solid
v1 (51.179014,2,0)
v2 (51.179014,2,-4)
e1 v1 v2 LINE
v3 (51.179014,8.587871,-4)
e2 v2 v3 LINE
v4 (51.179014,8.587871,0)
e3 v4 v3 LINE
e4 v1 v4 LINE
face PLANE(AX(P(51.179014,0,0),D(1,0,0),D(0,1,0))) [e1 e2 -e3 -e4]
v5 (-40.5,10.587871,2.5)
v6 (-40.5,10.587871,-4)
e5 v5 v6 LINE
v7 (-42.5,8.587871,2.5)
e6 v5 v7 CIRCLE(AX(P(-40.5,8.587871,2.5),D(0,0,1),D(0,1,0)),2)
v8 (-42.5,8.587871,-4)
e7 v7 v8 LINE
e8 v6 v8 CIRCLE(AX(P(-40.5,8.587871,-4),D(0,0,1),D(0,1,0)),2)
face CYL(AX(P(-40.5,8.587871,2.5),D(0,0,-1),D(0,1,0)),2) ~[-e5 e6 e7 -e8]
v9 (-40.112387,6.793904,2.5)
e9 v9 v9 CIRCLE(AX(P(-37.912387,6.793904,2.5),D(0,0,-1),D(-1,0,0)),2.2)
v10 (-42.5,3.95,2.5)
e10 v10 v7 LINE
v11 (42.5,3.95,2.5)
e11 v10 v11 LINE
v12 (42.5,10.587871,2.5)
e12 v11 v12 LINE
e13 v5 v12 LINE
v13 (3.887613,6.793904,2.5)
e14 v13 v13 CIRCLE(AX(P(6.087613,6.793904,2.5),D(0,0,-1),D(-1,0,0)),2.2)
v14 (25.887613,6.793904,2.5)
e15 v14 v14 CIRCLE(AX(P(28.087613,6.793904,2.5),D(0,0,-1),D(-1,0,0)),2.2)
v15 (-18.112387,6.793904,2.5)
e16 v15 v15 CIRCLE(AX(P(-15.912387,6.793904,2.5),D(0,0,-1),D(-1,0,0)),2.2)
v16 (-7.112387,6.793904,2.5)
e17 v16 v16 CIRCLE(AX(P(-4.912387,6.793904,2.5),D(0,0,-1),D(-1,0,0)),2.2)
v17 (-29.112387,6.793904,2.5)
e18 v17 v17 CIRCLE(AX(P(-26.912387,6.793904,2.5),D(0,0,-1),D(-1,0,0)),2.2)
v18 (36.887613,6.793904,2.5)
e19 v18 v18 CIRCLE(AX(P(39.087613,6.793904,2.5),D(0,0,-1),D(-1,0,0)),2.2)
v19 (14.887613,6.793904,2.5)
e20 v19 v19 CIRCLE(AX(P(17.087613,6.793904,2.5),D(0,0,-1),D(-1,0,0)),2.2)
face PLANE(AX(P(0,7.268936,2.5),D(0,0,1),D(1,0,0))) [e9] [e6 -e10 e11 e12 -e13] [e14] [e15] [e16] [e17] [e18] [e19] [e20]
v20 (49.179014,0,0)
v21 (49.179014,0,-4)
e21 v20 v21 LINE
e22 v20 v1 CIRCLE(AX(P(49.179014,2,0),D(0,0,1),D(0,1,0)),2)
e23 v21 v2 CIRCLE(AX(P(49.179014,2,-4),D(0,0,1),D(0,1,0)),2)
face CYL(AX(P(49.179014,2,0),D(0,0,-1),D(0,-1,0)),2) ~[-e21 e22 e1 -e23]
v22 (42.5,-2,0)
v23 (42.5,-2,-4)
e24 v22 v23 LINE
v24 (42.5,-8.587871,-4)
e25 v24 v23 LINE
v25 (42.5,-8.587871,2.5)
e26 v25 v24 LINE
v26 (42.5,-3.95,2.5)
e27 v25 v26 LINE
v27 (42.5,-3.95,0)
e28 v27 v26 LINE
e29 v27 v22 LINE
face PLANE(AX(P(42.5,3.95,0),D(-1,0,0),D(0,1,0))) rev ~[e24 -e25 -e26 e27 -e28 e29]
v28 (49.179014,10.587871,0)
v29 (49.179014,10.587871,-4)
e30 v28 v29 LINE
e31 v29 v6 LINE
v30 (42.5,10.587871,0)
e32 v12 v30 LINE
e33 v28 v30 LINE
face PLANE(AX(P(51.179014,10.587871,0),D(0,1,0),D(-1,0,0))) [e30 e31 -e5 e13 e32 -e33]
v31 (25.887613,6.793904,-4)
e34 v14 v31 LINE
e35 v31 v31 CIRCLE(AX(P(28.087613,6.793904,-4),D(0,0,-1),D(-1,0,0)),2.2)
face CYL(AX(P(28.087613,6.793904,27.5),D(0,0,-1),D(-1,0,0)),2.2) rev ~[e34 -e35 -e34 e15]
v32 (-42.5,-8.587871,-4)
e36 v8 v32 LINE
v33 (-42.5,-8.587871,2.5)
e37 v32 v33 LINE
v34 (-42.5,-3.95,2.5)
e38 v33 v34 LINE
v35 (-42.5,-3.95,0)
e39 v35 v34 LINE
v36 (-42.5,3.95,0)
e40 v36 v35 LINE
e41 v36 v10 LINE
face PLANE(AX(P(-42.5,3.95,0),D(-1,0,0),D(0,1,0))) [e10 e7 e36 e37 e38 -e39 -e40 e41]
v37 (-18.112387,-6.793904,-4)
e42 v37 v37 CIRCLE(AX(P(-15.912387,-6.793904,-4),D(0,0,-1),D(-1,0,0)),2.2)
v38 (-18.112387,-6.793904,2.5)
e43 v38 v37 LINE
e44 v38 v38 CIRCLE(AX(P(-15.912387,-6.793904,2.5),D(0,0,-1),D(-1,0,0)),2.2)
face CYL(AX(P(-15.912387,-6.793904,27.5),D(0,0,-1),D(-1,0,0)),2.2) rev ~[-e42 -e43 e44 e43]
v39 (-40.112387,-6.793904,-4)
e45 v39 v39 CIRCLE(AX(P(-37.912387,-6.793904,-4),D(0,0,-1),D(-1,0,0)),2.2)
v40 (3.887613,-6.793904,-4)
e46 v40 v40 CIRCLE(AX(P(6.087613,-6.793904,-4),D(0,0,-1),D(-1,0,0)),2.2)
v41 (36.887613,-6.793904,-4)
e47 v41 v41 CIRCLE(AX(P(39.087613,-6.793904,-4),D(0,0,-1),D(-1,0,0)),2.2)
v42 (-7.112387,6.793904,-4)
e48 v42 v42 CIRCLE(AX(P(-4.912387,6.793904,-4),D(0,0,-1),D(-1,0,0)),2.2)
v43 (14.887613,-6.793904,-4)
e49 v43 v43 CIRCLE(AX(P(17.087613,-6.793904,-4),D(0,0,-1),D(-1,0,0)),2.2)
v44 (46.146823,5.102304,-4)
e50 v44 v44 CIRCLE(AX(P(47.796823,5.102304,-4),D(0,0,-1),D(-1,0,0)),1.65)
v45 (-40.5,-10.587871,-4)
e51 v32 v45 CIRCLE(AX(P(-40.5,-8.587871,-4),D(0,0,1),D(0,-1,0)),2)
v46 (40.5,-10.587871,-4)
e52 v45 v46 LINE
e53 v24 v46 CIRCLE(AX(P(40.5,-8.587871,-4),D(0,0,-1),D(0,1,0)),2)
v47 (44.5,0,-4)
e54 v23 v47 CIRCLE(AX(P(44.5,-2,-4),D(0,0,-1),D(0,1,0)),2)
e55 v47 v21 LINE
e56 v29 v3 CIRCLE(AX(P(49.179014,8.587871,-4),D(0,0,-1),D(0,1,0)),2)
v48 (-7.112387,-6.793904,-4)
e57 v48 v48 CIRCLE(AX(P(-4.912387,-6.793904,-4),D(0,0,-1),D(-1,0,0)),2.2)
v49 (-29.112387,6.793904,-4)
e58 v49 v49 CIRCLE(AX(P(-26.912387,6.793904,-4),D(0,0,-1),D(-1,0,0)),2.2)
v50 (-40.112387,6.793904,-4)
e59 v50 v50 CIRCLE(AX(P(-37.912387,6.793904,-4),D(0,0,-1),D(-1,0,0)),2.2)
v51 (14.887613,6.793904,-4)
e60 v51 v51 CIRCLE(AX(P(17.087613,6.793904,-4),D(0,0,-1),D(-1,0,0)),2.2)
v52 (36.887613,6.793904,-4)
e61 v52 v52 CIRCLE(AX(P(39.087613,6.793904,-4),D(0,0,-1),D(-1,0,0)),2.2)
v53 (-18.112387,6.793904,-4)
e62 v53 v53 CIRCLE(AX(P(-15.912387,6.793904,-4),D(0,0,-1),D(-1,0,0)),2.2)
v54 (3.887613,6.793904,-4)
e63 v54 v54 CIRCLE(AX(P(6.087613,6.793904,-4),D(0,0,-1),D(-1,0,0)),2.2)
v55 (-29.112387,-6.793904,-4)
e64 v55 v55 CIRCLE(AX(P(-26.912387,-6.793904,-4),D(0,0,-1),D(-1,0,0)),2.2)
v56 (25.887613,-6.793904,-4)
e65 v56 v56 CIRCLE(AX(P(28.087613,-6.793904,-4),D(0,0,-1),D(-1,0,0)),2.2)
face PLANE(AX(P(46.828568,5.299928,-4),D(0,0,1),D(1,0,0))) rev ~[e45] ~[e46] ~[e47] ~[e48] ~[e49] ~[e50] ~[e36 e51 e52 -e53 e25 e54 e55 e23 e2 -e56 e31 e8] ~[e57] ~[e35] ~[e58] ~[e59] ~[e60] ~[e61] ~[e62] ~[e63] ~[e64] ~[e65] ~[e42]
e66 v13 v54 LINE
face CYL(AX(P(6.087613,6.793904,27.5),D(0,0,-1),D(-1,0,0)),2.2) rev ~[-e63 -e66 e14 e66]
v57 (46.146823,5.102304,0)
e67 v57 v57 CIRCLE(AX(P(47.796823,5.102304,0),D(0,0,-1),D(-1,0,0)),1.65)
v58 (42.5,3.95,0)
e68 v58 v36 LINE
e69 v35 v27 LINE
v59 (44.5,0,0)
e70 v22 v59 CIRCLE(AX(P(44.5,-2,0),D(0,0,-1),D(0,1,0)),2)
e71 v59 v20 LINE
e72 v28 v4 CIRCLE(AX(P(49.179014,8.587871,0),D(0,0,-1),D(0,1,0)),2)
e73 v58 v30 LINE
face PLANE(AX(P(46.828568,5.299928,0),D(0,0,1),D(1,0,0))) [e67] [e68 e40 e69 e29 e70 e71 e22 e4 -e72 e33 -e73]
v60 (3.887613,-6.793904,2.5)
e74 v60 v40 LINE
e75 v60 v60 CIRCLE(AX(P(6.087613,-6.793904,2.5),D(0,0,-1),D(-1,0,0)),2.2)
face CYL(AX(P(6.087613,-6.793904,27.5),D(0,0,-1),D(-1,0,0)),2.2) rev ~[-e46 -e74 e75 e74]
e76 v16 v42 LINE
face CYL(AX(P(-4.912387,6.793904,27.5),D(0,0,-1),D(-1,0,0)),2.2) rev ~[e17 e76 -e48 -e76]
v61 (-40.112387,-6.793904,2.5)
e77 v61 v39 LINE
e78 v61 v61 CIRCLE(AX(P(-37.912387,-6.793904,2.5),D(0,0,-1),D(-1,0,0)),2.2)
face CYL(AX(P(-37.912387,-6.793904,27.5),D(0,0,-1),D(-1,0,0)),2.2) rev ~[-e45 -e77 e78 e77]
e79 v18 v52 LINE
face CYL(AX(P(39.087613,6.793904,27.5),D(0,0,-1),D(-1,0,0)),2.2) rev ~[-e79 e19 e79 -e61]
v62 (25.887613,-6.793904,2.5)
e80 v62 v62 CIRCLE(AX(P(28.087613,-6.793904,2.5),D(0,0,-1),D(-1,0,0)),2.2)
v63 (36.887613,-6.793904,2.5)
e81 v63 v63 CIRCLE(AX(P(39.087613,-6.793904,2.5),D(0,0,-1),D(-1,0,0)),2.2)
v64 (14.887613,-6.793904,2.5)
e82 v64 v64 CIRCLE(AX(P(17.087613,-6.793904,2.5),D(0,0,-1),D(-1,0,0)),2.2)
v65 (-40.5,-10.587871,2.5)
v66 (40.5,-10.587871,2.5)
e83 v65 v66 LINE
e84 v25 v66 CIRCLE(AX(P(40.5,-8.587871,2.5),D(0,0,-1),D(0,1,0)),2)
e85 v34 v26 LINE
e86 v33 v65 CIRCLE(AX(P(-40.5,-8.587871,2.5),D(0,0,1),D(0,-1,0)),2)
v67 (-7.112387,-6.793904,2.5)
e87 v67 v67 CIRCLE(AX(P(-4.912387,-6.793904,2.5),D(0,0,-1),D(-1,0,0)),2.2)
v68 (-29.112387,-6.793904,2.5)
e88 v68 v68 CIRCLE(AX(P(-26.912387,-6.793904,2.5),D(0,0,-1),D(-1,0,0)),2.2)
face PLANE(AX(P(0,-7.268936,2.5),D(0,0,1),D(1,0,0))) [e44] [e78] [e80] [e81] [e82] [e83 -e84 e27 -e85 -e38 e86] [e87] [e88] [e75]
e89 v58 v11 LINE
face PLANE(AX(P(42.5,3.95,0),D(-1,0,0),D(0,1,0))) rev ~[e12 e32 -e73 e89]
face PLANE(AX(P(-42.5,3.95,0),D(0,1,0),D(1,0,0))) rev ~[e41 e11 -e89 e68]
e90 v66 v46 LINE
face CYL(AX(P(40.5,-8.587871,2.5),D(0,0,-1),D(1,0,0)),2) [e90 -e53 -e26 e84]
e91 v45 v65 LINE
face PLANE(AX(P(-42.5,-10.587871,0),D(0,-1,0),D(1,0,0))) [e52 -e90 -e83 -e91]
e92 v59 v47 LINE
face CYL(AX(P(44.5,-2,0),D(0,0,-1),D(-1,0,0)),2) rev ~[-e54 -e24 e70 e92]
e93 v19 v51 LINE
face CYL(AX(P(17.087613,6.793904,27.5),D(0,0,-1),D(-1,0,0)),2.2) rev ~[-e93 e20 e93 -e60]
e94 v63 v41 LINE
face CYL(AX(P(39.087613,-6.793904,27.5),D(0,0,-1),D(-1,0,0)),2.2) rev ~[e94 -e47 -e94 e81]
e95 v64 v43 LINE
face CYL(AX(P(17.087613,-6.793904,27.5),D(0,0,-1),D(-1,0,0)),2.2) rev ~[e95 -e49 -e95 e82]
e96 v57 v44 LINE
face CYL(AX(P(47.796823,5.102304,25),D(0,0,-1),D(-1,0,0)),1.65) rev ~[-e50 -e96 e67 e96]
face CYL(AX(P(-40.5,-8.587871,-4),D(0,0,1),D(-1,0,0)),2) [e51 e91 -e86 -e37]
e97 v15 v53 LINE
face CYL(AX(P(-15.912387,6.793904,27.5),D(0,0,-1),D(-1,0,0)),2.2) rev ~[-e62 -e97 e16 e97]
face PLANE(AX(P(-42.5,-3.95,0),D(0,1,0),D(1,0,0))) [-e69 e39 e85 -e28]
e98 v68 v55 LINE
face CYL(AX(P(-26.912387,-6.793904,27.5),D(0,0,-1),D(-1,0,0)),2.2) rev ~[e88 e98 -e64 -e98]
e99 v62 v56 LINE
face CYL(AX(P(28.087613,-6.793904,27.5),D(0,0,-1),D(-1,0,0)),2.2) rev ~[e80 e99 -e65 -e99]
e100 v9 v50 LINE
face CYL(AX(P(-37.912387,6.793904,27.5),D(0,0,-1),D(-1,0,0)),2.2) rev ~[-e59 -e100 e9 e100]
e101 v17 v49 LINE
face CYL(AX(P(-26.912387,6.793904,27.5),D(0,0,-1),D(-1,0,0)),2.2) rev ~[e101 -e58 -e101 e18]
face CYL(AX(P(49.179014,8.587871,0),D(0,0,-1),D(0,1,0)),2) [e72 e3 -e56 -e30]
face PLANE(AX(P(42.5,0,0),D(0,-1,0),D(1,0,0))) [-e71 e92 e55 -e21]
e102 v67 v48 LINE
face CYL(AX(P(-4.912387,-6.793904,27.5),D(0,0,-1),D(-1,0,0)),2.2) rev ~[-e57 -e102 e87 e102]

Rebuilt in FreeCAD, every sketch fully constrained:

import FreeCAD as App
import Part
import Sketcher
from FreeCAD import Vector


def edges_at(feature, points):
    """Names of the edges that pass closest to the given points."""
    edges = feature.Shape.Edges
    near = lambda p: min(range(len(edges)), key=lambda i: edges[i].distToShape(Part.Vertex(*p))[0])
    return sorted({f"Edge{near(p) + 1}" for p in points})


def add_polygon(sketch, points):
    """Adds a closed chain of lines whose ends are joined by coincident constraints."""
    first, n = sketch.GeometryCount, len(points)
    for a, b in zip(points, points[1:] + points[:1]):
        sketch.addGeometry(Part.LineSegment(App.Vector(*a, 0), App.Vector(*b, 0)), False)
    for i in range(n):
        sketch.addConstraint(Sketcher.Constraint("Coincident", first + i, 2, first + (i + 1) % n, 1))

doc = App.newDocument("Part")
params = doc.addObject("Spreadsheet::Sheet", "Params")
for row, (alias, value) in enumerate([
    ("sketch1_width", "85 mm"),
    ("pad1_length", "4 mm"),
    ("sketch2_width", "85 mm"),
    ("pad2_length", "2.5 mm"),
    ("sketch3_diameter", "4.4 mm"),
    ("hole_diameter", "4.4 mm"),
    ("hole_depth", "25 mm"),
    ("pad3_length", "4 mm"),
    ("sketch5_diameter", "3.3 mm"),
    ("hole2_diameter", "3.3 mm"),
    ("hole2_depth", "25 mm"),
    ("fillet_radius", "2 mm"),
], start=1):
    params.set(f"A{row}", alias)
    params.set(f"B{row}", "=" + value)
    params.setAlias(f"B{row}", alias)

body = doc.addObject("PartDesign::Body", "Body")

# Sketch on XY plane
sketch1 = doc.addObject("Sketcher::SketchObject", "Sketch")
body.addObject(sketch1)
sketch1.AttachmentSupport = (doc.XY_Plane, [""])
sketch1.MapMode = "FlatFace"
add_polygon(sketch1, [(-42.5, 10.587871), (-42.5, -10.587871), (42.5, -10.587871), (42.5, 10.587871)])  # lines 0-3
sketch1.addConstraint([
    Sketcher.Constraint("Vertical", 0),
    Sketcher.Constraint("Horizontal", 1),
    Sketcher.Constraint("Vertical", 2),
    Sketcher.Constraint("Horizontal", 3),
    Sketcher.Constraint("Symmetric", 0, 2, 2, 2, -1, 1),
    Sketcher.Constraint("DistanceX", 1, 1, 1, 2, 85.0),
    Sketcher.Constraint("DistanceY", 0, 2, 0, 1, 21.175742),
])
sketch1.setExpression("Constraints[9]", "Params.sketch1_width")
pad1 = doc.addObject("PartDesign::Pad", "Pad")
body.addObject(pad1)
pad1.Profile = sketch1
pad1.setExpression("Length", "Params.pad1_length")
pad1.Reversed = True

# Sketch on XY plane
sketch2 = doc.addObject("Sketcher::SketchObject", "Sketch001")
body.addObject(sketch2)
sketch2.AttachmentSupport = (doc.XY_Plane, [""])
sketch2.MapMode = "FlatFace"
add_polygon(sketch2, [(-42.5, 10.587871), (-42.5, 3.95), (42.5, 3.95), (42.5, 10.587871)])  # lines 0-3
add_polygon(sketch2, [(-42.5, -3.95), (-42.5, -10.587871), (42.5, -10.587871), (42.5, -3.95)])  # lines 4-7
sketch2.addConstraint([
    Sketcher.Constraint("Vertical", 0),
    Sketcher.Constraint("Horizontal", 1),
    Sketcher.Constraint("Vertical", 2),
    Sketcher.Constraint("Horizontal", 3),
    Sketcher.Constraint("Vertical", 4),
    Sketcher.Constraint("Horizontal", 5),
    Sketcher.Constraint("Vertical", 6),
    Sketcher.Constraint("Horizontal", 7),
    Sketcher.Constraint("Symmetric", 2, 2, 4, 2, -1, 1),
    Sketcher.Constraint("Symmetric", 0, 2, 6, 2, -1, 1),
    Sketcher.Constraint("Vertical", 3, 2, 4, 2),
    Sketcher.Constraint("DistanceX", 1, 1, 1, 2, 85.0),
    Sketcher.Constraint("DistanceY", 6, 2, 1, 2, 7.9),
    Sketcher.Constraint("DistanceY", 0, 2, 0, 1, 6.637871),
])
sketch2.setExpression("Constraints[19]", "Params.sketch2_width")
pad2 = doc.addObject("PartDesign::Pad", "Pad001")
body.addObject(pad2)
pad2.Profile = sketch2
pad2.setExpression("Length", "Params.pad2_length")

# Sketch on XY plane
sketch3 = doc.addObject("Sketcher::SketchObject", "Sketch002")
body.addObject(sketch3)
sketch3.AttachmentSupport = (doc.XY_Plane, [""])
sketch3.MapMode = "FlatFace"
sketch3.AttachmentOffset = App.Placement(Vector(0, 0, 2.5), App.Rotation())
sketch3.addGeometry([
    Part.Circle(Vector(-37.912387, 6.793904, 0), Vector(0, 0, 1), 2.2),  # 0
    Part.Circle(Vector(-37.912387, -6.793904, 0), Vector(0, 0, 1), 2.2),  # 1
    Part.Circle(Vector(-26.912387, 6.793904, 0), Vector(0, 0, 1), 2.2),  # 2
    Part.Circle(Vector(-26.912387, -6.793904, 0), Vector(0, 0, 1), 2.2),  # 3
    Part.Circle(Vector(-15.912387, 6.793904, 0), Vector(0, 0, 1), 2.2),  # 4
    Part.Circle(Vector(-15.912387, -6.793904, 0), Vector(0, 0, 1), 2.2),  # 5
    Part.Circle(Vector(-4.912387, 6.793904, 0), Vector(0, 0, 1), 2.2),  # 6
    Part.Circle(Vector(-4.912387, -6.793904, 0), Vector(0, 0, 1), 2.2),  # 7
    Part.Circle(Vector(6.087613, 6.793904, 0), Vector(0, 0, 1), 2.2),  # 8
    Part.Circle(Vector(6.087613, -6.793904, 0), Vector(0, 0, 1), 2.2),  # 9
    Part.Circle(Vector(17.087613, -6.793904, 0), Vector(0, 0, 1), 2.2),  # 10
    Part.Circle(Vector(17.087613, 6.793904, 0), Vector(0, 0, 1), 2.2),  # 11
    Part.Circle(Vector(28.087613, 6.793904, 0), Vector(0, 0, 1), 2.2),  # 12
    Part.Circle(Vector(28.087613, -6.793904, 0), Vector(0, 0, 1), 2.2),  # 13
    Part.Circle(Vector(39.087613, -6.793904, 0), Vector(0, 0, 1), 2.2),  # 14
    Part.Circle(Vector(39.087613, 6.793904, 0), Vector(0, 0, 1), 2.2),  # 15
], False)
sketch3.addConstraint([
    Sketcher.Constraint("Equal", 0, 1),
    Sketcher.Constraint("Equal", 1, 2),
    Sketcher.Constraint("Equal", 2, 3),
    Sketcher.Constraint("Equal", 3, 4),
    Sketcher.Constraint("Equal", 4, 5),
    Sketcher.Constraint("Equal", 5, 6),
    Sketcher.Constraint("Equal", 6, 7),
    Sketcher.Constraint("Equal", 7, 8),
    Sketcher.Constraint("Equal", 8, 9),
    Sketcher.Constraint("Equal", 9, 10),
    Sketcher.Constraint("Equal", 10, 11),
    Sketcher.Constraint("Equal", 11, 12),
    Sketcher.Constraint("Equal", 12, 13),
    Sketcher.Constraint("Equal", 13, 14),
    Sketcher.Constraint("Equal", 14, 15),
    Sketcher.Constraint("Symmetric", 0, 3, 1, 3, -1),
    Sketcher.Constraint("Symmetric", 2, 3, 3, 3, -1),
    Sketcher.Constraint("Symmetric", 4, 3, 5, 3, -1),
    Sketcher.Constraint("Symmetric", 6, 3, 7, 3, -1),
    Sketcher.Constraint("Symmetric", 8, 3, 9, 3, -1),
    Sketcher.Constraint("Symmetric", 10, 3, 11, 3, -1),
    Sketcher.Constraint("Symmetric", 12, 3, 13, 3, -1),
    Sketcher.Constraint("Symmetric", 14, 3, 15, 3, -1),
    Sketcher.Constraint("Horizontal", 0, 3, 2, 3),
    Sketcher.Constraint("Horizontal", 2, 3, 4, 3),
    Sketcher.Constraint("Horizontal", 4, 3, 6, 3),
    Sketcher.Constraint("Horizontal", 6, 3, 8, 3),
    Sketcher.Constraint("Horizontal", 9, 3, 10, 3),
    Sketcher.Constraint("Horizontal", 11, 3, 12, 3),
    Sketcher.Constraint("Horizontal", 13, 3, 14, 3),
    Sketcher.Constraint("Diameter", 0, 4.4),
    Sketcher.Constraint("DistanceX", 0, 3, 2, 3, 11.0),
    Sketcher.Constraint("DistanceX", 2, 3, 4, 3, 11.0),
    Sketcher.Constraint("DistanceX", 4, 3, 6, 3, 11.0),
    Sketcher.Constraint("DistanceX", 6, 3, 8, 3, 11.0),
    Sketcher.Constraint("DistanceX", 9, 3, 10, 3, 11.0),
    Sketcher.Constraint("DistanceX", 11, 3, 12, 3, 11.0),
    Sketcher.Constraint("DistanceX", 13, 3, 14, 3, 11.0),
    Sketcher.Constraint("DistanceY", 1, 3, 0, 3, 13.587808),
    Sketcher.Constraint("DistanceX", 0, 3, -1, 1, 37.912387),
])
sketch3.setExpression("Constraints[30]", "Params.sketch3_diameter")
doc.recompute()
hole = doc.addObject("PartDesign::Hole", "Hole")
body.addObject(hole)
hole.Profile = sketch3
hole.ThreadType = "None"
hole.setExpression("Diameter", "Params.hole_diameter")
hole.DepthType = "Dimension"
hole.setExpression("Depth", "Params.hole_depth")
hole.DrillPoint = "Angled"
hole.DrillPointAngle = 118

# Sketch on XY plane
sketch4 = doc.addObject("Sketcher::SketchObject", "Sketch003")
body.addObject(sketch4)
sketch4.AttachmentSupport = (doc.XY_Plane, [""])
sketch4.MapMode = "FlatFace"
add_polygon(sketch4, [(51.179014, 10.587871), (42.456333, 10.587871), (42.5, 0), (51.179014, 0)])  # lines 0-3
sketch4.addConstraint([
    Sketcher.Constraint("Horizontal", 0),
    Sketcher.Constraint("Horizontal", 2),
    Sketcher.Constraint("Vertical", 3),
    Sketcher.Constraint("PointOnObject", 1, 2, -1),
    Sketcher.Constraint("DistanceX", -1, 1, 1, 2, 42.5),
    Sketcher.Constraint("DistanceX", 0, 2, 0, 1, 8.722682),
    Sketcher.Constraint("DistanceY", 3, 1, 3, 2, 10.587871),
    Sketcher.Constraint("DistanceX", 2, 1, 2, 2, 8.679014),
])
pad3 = doc.addObject("PartDesign::Pad", "Pad002")
body.addObject(pad3)
pad3.Profile = sketch4
pad3.setExpression("Length", "Params.pad3_length")
pad3.Reversed = True

# Sketch on XY plane
sketch5 = doc.addObject("Sketcher::SketchObject", "Sketch004")
body.addObject(sketch5)
sketch5.AttachmentSupport = (doc.XY_Plane, [""])
sketch5.MapMode = "FlatFace"
sketch5.addGeometry(Part.Circle(Vector(47.796823, 5.102304, 0), Vector(0, 0, 1), 1.65), False)
sketch5.addConstraint([
    Sketcher.Constraint("Diameter", 0, 3.3),
    Sketcher.Constraint("DistanceX", -1, 1, 0, 3, 47.796823),
    Sketcher.Constraint("DistanceY", -1, 1, 0, 3, 5.102304),
])
sketch5.setExpression("Constraints[0]", "Params.sketch5_diameter")
doc.recompute()
hole2 = doc.addObject("PartDesign::Hole", "Hole001")
body.addObject(hole2)
hole2.Profile = sketch5
hole2.ThreadType = "None"
hole2.setExpression("Diameter", "Params.hole2_diameter")
hole2.DepthType = "Dimension"
hole2.setExpression("Depth", "Params.hole2_depth")
hole2.DrillPoint = "Angled"
hole2.DrillPointAngle = 118
doc.recompute()

fillet = doc.addObject("PartDesign::Fillet", "Fillet")
body.addObject(fillet)
fillet.Base = (hole2, edges_at(hole2, [
    (-42.5, 10.588, -0.75),
    (-42.5, -10.588, -0.75),
    (51.179, 10.588, -2),
    (51.179, 0, -2),
    (42.5, -10.588, -0.75),
    (42.5, 0, -2),
]))
fillet.setExpression("Radius", "Params.fillet_radius")

doc.recompute()
